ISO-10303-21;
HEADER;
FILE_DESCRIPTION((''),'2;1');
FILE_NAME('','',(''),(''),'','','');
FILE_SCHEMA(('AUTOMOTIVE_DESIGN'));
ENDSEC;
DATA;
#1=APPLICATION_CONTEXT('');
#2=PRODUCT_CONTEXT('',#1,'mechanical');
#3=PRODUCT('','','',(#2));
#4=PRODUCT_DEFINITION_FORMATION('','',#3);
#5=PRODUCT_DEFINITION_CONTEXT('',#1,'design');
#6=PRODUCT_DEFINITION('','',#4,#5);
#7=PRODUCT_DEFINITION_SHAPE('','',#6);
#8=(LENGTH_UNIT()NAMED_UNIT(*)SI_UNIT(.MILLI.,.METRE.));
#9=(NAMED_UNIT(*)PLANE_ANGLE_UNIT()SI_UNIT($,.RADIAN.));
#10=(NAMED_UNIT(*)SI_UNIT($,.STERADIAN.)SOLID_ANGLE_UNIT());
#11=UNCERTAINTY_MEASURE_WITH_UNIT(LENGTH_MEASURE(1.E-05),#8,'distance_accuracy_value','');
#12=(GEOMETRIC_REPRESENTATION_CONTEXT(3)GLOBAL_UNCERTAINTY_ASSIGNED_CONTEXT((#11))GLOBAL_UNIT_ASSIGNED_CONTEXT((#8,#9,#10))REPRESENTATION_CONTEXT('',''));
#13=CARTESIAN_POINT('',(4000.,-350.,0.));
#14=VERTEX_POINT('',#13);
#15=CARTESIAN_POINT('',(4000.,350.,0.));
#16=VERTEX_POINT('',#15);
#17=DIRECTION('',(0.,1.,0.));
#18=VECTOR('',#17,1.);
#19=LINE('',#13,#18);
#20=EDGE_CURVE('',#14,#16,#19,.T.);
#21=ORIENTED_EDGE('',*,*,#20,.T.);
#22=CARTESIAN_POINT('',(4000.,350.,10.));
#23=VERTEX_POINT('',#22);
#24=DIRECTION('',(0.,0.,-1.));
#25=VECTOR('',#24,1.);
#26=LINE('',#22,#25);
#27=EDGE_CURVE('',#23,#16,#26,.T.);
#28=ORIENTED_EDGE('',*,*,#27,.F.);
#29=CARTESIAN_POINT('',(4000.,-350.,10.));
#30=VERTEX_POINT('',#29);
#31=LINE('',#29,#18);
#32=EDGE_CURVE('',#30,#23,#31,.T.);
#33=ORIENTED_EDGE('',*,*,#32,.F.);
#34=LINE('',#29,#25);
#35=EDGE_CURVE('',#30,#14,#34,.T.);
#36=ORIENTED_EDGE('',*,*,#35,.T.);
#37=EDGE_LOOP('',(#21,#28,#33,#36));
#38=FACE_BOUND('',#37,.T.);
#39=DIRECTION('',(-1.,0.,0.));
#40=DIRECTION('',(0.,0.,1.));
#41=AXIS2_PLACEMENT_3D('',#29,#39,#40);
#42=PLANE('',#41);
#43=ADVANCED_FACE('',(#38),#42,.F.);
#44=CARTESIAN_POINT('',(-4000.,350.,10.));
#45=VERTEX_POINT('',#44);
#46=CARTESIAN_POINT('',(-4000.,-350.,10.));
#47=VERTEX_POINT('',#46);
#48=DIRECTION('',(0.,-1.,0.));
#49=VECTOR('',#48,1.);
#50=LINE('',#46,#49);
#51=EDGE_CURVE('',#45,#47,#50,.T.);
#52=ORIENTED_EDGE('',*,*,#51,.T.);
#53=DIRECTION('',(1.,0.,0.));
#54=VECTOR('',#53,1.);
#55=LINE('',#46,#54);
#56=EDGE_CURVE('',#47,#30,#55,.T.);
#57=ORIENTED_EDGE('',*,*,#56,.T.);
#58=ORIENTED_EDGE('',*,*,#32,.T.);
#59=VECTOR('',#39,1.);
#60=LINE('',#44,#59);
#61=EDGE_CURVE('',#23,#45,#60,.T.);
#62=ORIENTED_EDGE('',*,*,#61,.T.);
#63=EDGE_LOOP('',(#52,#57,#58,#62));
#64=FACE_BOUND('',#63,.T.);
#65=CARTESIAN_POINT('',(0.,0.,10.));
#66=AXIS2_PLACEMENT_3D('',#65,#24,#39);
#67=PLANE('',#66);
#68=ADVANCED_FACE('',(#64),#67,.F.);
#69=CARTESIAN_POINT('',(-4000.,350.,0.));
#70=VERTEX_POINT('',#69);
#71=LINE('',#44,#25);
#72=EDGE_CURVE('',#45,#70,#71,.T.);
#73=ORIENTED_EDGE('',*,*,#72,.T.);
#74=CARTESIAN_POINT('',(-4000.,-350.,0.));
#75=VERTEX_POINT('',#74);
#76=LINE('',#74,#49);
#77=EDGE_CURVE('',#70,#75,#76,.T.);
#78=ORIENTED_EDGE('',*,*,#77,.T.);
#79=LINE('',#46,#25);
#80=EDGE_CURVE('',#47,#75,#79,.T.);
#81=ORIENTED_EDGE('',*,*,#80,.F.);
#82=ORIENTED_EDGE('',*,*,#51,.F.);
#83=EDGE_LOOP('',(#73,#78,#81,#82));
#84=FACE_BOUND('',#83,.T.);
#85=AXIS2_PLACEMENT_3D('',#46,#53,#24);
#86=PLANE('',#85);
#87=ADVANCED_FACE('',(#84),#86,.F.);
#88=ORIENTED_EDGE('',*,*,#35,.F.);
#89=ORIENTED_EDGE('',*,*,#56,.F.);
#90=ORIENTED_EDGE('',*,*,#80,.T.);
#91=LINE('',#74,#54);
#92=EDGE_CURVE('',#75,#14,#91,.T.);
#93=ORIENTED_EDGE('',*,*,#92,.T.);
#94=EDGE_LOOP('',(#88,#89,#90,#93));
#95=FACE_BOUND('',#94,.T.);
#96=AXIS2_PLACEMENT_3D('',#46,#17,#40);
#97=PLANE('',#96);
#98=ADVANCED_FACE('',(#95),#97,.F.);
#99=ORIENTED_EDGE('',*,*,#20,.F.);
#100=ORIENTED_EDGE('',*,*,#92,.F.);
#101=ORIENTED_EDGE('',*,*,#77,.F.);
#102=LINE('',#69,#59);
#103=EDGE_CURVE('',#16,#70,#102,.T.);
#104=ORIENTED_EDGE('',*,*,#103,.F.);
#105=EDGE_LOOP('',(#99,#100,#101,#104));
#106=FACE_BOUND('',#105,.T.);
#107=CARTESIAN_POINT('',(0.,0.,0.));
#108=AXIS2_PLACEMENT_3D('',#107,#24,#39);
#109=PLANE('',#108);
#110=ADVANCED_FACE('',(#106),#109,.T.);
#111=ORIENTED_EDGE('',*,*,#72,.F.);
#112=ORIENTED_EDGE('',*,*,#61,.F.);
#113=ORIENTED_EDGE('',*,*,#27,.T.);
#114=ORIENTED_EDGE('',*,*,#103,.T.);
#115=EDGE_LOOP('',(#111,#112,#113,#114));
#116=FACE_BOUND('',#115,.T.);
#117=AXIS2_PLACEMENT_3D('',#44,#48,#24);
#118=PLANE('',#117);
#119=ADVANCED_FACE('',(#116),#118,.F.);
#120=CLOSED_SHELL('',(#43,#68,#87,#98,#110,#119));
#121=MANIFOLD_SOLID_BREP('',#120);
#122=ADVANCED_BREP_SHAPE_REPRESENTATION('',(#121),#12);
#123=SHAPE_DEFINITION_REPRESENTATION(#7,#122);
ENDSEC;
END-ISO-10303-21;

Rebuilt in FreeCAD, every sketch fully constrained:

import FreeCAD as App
import Part
import Sketcher


def add_polygon(sketch, points):
    """Adds a closed chain of lines whose ends are joined by coincident constraints."""
    first, n = sketch.GeometryCount, len(points)
    for a, b in zip(points, points[1:] + points[:1]):
        sketch.addGeometry(Part.LineSegment(App.Vector(*a, 0), App.Vector(*b, 0)), False)
    for i in range(n):
        sketch.addConstraint(Sketcher.Constraint("Coincident", first + i, 2, first + (i + 1) % n, 1))

doc = App.newDocument("Part")
body = doc.addObject("PartDesign::Body", "Body")

sketch1 = body.newObject("Sketcher::SketchObject", "Sketch")
sketch1.AttachmentSupport = (doc.getObject("XY_Plane"), [""])
sketch1.MapMode = "FlatFace"
add_polygon(sketch1, [(-4000, 350), (-4000, -350), (4000, -350), (4000, 350)])
sketch1.addConstraint(Sketcher.Constraint("Vertical", 0))
sketch1.addConstraint(Sketcher.Constraint("Horizontal", 1))
sketch1.addConstraint(Sketcher.Constraint("Vertical", 2))
sketch1.addConstraint(Sketcher.Constraint("Horizontal", 3))
sketch1.addConstraint(Sketcher.Constraint("Symmetric", 0, 2, 2, 2, -1, 1))
sketch1.addConstraint(Sketcher.Constraint("DistanceX", 1, 1, 1, 2, 8000.0))
sketch1.addConstraint(Sketcher.Constraint("DistanceY", 0, 2, 0, 1, 700.0))
pad1 = body.newObject("PartDesign::Pad", "Pad")
pad1.Profile = sketch1
pad1.Length = 10

doc.recompute()
